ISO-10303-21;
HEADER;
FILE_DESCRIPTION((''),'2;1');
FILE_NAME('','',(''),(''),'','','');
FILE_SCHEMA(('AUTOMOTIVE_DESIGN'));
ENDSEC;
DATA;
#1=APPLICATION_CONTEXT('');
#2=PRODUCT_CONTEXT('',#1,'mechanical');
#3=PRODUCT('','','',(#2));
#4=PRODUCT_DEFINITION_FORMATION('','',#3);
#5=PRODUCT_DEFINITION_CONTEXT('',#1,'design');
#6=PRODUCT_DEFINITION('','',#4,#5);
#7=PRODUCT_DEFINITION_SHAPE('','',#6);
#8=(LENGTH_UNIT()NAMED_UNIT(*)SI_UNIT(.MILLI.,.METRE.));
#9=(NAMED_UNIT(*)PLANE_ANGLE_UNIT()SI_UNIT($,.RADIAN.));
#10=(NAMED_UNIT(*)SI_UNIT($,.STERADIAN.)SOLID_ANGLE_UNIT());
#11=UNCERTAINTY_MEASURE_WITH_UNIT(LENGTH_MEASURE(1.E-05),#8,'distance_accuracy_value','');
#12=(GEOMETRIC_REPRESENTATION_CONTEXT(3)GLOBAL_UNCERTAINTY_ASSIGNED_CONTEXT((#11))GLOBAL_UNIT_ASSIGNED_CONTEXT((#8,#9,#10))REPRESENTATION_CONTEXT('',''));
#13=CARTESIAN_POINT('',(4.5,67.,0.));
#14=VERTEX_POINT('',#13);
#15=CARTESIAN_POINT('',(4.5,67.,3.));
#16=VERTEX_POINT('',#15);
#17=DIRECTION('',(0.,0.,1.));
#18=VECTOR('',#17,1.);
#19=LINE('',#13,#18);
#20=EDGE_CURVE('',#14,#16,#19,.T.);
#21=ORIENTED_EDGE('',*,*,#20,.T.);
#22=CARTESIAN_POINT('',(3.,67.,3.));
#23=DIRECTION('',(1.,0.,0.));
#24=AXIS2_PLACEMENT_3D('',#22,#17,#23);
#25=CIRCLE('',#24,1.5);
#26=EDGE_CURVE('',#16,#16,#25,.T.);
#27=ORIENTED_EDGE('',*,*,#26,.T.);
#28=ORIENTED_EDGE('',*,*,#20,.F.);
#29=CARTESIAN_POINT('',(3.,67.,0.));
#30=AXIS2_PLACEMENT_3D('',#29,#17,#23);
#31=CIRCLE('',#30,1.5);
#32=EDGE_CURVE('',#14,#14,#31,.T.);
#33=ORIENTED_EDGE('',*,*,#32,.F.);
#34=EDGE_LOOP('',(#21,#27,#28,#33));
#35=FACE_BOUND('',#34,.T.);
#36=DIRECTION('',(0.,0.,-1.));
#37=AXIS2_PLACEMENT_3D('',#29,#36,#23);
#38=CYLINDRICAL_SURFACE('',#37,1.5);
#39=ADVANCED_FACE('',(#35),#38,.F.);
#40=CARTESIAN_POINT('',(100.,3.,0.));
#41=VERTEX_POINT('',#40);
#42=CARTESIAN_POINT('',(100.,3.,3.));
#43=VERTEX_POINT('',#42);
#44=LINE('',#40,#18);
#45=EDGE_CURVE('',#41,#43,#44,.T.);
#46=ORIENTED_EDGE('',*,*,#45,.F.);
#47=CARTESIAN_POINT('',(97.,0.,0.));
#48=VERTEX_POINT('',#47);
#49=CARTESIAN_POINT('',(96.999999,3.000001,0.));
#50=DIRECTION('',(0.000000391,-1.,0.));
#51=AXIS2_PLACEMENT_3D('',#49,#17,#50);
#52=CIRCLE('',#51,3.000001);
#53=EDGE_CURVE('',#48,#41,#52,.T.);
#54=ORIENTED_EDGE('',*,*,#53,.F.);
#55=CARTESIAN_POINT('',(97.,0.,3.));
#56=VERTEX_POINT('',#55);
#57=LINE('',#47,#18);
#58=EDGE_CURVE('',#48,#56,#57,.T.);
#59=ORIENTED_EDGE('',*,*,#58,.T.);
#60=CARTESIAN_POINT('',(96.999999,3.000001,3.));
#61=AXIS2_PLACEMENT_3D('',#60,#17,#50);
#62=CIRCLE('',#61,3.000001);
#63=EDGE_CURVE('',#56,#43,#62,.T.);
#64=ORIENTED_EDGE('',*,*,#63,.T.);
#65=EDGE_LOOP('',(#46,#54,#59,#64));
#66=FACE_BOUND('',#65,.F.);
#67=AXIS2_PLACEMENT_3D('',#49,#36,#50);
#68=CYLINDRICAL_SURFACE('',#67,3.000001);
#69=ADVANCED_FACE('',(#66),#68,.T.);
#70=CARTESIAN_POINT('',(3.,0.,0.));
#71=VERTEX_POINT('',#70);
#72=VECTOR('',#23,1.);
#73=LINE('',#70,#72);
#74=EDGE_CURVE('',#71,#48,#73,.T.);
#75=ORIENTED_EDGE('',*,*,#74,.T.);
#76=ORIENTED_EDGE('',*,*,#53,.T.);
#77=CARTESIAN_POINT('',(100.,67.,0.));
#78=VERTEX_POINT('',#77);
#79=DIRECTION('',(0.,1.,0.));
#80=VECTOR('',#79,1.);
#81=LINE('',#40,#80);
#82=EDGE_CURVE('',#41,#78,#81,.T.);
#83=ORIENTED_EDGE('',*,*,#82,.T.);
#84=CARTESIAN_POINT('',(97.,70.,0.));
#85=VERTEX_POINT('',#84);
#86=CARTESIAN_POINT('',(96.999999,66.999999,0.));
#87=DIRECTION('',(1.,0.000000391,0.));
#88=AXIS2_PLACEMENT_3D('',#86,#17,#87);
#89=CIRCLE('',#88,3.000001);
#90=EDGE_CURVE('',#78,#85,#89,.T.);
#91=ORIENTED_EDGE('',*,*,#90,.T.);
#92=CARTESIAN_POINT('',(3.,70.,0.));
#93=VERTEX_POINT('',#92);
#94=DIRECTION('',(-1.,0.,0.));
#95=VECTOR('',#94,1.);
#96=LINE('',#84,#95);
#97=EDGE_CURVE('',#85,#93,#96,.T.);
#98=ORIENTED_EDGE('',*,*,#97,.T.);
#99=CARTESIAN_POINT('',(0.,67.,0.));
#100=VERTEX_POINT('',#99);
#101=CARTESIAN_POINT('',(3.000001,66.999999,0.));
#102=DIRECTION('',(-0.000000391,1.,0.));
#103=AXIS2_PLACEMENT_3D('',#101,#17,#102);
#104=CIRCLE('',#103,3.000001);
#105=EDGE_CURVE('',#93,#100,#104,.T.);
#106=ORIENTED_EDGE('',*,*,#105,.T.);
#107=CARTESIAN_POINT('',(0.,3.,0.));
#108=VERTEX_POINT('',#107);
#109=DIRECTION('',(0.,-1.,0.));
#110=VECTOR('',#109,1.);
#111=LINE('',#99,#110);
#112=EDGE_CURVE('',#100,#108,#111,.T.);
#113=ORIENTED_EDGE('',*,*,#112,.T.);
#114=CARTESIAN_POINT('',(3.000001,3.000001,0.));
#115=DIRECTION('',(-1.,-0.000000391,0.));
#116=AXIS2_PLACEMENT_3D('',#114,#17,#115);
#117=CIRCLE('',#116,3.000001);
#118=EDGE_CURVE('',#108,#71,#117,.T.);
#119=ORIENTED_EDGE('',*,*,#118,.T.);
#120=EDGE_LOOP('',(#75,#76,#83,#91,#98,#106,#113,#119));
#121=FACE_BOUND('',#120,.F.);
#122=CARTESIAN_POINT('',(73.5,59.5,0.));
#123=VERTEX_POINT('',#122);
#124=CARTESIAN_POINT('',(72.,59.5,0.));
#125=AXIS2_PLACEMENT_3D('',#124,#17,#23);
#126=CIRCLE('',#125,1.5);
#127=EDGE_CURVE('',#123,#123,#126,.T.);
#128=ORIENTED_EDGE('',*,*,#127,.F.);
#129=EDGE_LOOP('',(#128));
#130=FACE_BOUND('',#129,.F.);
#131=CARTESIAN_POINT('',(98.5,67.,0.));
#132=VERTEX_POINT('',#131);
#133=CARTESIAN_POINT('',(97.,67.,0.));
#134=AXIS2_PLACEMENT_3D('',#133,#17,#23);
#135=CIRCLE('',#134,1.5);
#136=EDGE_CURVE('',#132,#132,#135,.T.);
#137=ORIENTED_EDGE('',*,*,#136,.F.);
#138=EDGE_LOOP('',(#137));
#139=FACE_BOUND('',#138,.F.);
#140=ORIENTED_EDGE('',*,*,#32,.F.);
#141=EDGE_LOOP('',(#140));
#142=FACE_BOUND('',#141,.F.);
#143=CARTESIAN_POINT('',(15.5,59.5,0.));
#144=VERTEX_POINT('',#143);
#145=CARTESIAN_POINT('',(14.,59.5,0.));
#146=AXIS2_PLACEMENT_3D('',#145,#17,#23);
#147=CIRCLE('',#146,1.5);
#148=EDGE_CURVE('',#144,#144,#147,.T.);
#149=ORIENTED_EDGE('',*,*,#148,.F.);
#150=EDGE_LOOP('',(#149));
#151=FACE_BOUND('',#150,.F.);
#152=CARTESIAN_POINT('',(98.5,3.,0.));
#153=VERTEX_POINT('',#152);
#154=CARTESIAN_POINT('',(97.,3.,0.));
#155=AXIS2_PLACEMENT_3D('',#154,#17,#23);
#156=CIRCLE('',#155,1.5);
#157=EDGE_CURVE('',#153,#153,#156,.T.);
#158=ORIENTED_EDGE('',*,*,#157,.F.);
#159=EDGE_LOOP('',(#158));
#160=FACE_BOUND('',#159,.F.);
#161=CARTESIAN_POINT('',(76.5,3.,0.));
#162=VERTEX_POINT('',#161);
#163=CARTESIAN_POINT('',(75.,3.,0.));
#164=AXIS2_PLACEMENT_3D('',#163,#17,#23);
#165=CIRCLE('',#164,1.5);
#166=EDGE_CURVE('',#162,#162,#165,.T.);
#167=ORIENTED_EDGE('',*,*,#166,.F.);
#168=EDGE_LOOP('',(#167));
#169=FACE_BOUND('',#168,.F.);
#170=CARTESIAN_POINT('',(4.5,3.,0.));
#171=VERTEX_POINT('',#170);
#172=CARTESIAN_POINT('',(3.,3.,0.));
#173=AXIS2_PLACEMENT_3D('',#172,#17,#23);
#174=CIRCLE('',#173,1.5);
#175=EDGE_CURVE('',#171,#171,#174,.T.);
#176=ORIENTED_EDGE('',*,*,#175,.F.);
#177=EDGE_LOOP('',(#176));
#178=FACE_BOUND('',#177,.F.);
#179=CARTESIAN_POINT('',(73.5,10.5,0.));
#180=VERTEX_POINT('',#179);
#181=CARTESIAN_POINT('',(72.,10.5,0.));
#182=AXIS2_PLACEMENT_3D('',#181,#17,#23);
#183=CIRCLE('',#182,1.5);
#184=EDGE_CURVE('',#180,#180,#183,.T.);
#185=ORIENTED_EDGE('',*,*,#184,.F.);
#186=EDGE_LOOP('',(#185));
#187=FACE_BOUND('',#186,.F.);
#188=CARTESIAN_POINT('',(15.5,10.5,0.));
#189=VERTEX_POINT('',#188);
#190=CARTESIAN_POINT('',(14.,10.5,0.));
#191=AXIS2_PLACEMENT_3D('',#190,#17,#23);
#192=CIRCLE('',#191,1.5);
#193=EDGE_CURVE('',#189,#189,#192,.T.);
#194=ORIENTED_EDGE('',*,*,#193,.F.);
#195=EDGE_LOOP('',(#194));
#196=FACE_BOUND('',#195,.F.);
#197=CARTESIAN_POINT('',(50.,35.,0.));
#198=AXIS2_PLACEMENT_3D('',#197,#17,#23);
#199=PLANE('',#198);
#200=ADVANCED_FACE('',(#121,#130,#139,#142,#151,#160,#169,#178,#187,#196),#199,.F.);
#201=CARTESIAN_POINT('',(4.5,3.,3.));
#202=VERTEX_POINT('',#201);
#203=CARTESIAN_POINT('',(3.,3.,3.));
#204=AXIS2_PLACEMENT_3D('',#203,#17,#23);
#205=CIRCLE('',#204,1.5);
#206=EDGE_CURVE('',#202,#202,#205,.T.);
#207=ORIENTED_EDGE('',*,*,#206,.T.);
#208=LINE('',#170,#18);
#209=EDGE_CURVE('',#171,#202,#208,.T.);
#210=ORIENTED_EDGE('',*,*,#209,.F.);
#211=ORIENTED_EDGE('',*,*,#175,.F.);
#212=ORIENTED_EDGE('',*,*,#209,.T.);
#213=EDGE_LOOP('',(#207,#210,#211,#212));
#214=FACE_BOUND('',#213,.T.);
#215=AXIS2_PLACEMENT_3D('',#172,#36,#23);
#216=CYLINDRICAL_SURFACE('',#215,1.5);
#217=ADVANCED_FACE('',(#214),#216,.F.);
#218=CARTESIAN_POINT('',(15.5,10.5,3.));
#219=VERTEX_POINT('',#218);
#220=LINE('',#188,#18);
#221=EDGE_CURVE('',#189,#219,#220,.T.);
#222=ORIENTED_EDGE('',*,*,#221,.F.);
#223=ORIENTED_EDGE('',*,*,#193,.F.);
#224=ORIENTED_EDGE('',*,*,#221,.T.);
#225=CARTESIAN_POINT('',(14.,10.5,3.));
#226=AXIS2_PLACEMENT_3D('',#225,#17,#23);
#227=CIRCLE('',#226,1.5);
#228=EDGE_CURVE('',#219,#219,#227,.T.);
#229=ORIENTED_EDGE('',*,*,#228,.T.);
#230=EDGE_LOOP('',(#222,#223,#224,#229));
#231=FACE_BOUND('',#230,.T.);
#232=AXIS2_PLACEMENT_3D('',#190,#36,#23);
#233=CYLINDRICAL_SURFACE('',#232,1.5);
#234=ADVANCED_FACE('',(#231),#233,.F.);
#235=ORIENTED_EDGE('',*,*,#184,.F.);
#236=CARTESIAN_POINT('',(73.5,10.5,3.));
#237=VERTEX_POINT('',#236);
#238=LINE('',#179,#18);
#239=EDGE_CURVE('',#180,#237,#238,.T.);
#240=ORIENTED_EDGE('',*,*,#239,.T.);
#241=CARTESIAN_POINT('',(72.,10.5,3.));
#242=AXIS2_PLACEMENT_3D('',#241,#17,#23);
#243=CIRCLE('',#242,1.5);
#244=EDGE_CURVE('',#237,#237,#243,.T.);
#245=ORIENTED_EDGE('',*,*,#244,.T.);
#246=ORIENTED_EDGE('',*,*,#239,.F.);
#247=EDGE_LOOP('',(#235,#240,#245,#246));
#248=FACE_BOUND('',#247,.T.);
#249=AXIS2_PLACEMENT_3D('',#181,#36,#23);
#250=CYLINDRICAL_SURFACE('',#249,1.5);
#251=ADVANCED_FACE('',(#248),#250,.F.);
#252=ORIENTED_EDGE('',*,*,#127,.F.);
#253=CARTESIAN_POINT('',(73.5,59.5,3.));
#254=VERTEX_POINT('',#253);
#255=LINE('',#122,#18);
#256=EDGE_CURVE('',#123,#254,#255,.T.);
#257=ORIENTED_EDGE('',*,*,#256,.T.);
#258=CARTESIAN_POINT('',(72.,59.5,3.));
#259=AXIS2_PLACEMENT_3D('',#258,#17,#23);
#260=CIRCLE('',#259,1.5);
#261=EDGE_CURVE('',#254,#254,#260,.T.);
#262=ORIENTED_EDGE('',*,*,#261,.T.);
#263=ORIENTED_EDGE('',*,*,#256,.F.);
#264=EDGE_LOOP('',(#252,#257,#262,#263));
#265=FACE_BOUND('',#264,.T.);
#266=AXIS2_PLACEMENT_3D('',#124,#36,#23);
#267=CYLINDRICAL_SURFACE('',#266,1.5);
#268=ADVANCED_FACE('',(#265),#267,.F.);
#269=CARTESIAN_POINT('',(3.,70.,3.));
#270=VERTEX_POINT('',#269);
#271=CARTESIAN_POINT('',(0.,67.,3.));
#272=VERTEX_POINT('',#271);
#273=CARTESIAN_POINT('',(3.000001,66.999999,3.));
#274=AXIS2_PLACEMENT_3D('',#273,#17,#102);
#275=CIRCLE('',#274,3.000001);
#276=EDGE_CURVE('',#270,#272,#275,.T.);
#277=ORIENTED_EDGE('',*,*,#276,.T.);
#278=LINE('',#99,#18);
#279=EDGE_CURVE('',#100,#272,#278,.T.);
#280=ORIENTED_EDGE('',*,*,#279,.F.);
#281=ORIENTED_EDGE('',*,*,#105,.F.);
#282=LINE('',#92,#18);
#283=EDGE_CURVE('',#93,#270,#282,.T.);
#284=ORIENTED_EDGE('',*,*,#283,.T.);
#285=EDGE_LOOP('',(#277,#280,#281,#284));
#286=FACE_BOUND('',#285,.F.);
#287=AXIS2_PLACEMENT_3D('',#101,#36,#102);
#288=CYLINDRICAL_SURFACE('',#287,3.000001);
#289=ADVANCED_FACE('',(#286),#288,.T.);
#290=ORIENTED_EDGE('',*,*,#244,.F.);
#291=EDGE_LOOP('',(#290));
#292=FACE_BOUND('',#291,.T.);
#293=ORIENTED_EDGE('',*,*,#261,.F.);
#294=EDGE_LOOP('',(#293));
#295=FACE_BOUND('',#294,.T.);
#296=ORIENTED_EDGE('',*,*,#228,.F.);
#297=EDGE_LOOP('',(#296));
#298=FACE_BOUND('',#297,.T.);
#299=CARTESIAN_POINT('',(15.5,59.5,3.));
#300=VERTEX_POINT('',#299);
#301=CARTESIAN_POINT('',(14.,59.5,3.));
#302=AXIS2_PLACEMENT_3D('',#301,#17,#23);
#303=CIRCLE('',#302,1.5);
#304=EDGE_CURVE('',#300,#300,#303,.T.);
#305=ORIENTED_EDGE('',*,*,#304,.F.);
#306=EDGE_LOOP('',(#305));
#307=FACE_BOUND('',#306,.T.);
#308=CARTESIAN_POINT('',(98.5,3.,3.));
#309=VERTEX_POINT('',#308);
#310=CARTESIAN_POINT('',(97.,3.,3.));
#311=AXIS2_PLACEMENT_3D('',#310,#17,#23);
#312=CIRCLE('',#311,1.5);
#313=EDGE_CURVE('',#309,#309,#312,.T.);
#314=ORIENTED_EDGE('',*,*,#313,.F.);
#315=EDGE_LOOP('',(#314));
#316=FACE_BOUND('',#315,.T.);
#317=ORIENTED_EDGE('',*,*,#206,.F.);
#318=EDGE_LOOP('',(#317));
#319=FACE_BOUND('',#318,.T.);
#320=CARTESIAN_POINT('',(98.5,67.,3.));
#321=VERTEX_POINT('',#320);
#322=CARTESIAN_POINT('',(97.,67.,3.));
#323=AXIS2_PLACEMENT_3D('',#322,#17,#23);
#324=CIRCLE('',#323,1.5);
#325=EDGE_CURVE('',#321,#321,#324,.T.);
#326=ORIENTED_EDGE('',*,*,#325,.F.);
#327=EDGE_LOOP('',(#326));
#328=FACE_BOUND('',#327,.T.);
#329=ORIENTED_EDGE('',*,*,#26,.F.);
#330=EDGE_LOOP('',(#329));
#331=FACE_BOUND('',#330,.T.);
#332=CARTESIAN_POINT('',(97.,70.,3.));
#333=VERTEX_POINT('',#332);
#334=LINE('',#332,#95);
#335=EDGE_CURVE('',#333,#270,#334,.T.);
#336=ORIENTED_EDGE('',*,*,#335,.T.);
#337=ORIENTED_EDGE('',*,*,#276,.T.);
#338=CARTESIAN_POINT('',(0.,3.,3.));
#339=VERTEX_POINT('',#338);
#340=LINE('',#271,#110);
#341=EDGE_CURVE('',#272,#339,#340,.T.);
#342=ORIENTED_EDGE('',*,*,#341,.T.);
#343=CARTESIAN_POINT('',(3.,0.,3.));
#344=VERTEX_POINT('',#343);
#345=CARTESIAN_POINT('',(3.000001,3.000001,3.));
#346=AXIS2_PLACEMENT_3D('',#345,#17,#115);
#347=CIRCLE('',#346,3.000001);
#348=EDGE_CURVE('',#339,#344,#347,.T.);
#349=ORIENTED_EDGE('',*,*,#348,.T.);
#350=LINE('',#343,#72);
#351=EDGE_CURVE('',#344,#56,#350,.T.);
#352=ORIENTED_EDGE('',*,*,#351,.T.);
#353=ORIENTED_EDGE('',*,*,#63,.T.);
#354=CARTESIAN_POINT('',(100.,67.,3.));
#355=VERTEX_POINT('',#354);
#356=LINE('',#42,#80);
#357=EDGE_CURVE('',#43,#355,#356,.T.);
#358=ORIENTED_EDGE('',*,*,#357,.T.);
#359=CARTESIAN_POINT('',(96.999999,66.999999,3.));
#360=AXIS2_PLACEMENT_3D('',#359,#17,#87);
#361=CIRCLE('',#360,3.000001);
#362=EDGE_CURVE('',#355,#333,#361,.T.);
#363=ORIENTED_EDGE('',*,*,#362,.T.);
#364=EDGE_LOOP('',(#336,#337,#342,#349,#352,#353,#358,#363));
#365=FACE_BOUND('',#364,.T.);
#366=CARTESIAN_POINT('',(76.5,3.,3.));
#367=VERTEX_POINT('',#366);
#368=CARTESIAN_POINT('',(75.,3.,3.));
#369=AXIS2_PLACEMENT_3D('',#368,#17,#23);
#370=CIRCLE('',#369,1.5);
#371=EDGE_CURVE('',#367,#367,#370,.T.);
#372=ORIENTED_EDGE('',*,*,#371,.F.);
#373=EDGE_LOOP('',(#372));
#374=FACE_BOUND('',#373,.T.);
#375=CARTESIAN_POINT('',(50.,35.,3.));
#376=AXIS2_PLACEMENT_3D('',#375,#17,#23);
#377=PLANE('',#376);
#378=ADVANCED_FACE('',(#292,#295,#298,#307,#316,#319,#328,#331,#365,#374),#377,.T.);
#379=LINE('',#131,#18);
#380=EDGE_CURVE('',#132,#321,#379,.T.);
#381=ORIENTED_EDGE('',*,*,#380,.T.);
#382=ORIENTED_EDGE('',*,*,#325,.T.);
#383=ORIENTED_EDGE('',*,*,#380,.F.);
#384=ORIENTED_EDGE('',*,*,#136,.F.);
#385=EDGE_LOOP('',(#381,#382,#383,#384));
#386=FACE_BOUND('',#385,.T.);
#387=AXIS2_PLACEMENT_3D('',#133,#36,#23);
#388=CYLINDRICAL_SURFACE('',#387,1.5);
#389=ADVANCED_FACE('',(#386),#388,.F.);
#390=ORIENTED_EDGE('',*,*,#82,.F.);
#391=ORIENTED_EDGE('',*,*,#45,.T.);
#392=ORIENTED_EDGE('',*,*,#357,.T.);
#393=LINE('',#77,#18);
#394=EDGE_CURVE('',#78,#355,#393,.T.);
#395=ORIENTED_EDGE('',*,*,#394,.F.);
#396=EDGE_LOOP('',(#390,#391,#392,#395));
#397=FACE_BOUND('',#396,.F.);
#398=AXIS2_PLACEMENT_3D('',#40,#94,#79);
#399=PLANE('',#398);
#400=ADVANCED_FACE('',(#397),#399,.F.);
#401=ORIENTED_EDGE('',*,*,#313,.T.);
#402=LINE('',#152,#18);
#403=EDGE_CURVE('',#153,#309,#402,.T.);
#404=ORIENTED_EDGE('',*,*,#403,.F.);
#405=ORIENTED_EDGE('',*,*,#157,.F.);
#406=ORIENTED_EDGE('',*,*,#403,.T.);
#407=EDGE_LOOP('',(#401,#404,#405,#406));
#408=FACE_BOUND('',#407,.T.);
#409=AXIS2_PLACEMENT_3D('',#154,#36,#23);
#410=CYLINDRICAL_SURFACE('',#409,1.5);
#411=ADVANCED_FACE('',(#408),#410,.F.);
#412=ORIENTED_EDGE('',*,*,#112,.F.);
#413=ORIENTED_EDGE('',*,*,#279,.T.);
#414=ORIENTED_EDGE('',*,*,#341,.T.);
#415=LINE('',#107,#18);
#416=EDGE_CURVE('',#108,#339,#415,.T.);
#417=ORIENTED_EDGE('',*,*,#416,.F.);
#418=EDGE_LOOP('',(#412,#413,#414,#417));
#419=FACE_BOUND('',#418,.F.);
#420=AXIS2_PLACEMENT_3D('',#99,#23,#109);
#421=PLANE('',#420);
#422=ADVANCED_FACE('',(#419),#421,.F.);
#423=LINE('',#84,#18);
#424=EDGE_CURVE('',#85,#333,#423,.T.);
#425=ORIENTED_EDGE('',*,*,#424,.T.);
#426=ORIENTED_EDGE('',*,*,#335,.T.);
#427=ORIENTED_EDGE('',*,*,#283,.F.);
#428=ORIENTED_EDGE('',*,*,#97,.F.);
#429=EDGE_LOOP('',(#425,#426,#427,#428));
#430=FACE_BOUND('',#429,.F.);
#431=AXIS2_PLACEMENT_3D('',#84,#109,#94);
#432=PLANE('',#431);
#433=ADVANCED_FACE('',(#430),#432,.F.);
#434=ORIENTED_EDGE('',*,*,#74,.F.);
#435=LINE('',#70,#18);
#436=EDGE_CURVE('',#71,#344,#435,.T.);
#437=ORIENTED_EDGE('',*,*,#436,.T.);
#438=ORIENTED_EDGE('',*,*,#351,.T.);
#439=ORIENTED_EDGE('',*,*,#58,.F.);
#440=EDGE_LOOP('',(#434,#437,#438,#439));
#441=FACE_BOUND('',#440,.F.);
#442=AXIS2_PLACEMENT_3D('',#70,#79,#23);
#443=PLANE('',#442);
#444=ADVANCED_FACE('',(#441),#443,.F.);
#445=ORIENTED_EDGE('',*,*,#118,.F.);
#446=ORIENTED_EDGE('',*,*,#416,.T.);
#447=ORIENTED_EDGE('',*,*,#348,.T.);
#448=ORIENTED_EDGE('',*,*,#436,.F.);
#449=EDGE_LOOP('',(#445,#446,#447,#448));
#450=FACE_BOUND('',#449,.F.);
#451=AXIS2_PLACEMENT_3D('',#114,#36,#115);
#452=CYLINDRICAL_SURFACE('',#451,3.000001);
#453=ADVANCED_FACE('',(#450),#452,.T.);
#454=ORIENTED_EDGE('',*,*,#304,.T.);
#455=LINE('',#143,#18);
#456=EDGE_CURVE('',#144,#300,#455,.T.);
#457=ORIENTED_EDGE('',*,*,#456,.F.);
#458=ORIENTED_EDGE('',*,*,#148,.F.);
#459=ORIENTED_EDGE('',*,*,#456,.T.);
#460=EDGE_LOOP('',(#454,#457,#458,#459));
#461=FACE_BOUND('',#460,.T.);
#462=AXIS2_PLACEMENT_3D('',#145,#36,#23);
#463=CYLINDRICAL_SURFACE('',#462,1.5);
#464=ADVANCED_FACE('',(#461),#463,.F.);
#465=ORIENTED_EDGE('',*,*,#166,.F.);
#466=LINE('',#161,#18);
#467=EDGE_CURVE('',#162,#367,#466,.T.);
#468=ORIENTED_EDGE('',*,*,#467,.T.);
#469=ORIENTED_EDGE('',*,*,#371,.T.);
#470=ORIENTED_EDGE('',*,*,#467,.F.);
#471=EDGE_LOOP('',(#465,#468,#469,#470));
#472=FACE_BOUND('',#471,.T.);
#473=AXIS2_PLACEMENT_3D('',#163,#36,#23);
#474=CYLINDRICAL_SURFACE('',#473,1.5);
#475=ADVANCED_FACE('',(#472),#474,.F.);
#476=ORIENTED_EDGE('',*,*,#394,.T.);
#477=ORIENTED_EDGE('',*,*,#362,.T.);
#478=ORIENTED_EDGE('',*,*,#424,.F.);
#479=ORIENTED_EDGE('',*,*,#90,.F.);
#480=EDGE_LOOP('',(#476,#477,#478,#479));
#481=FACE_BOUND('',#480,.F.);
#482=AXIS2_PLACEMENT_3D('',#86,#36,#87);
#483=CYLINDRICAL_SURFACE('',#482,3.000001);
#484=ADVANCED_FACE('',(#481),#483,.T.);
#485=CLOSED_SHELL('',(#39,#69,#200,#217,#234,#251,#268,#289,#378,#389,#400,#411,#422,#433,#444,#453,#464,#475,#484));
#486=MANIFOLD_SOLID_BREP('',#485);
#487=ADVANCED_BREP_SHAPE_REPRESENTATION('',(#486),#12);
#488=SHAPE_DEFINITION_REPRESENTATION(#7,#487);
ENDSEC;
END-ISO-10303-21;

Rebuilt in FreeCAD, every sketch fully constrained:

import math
import FreeCAD as App
import Part
import Sketcher
from FreeCAD import Vector

doc = App.newDocument("Part")
body = doc.addObject("PartDesign::Body", "Body")

# Sketch on XY plane
sketch1 = doc.addObject("Sketcher::SketchObject", "Sketch")
body.addObject(sketch1)
sketch1.AttachmentSupport = (doc.XY_Plane, [""])
sketch1.MapMode = "FlatFace"
sketch1.addGeometry([
    Part.ArcOfCircle(Part.Circle(Vector(3, 3, 0), Vector(0, 0, 1), 3), math.radians(-180), math.radians(-90)),  # 0
    Part.LineSegment(Vector(3, 0, 0), Vector(97, 0, 0)),  # 1
    Part.ArcOfCircle(Part.Circle(Vector(97, 3, 0), Vector(0, 0, 1), 3), math.radians(-90), math.radians(0)),  # 2
    Part.LineSegment(Vector(100, 3, 0), Vector(100, 67, 0)),  # 3
    Part.ArcOfCircle(Part.Circle(Vector(97, 67, 0), Vector(0, 0, 1), 3), math.radians(0), math.radians(90)),  # 4
    Part.LineSegment(Vector(97, 70, 0), Vector(3, 70, 0)),  # 5
    Part.ArcOfCircle(Part.Circle(Vector(3, 67, 0), Vector(0, 0, 1), 3), math.radians(90), math.radians(180)),  # 6
    Part.LineSegment(Vector(0, 67, 0), Vector(0, 3, 0)),  # 7
    Part.Circle(Vector(3, 3, 0), Vector(0, 0, 1), 1.5),  # 8
    Part.Circle(Vector(14, 10.5, 0), Vector(0, 0, 1), 1.5),  # 9
    Part.Circle(Vector(72, 10.5, 0), Vector(0, 0, 1), 1.5),  # 10
    Part.Circle(Vector(75, 3, 0), Vector(0, 0, 1), 1.5),  # 11
    Part.Circle(Vector(97, 3, 0), Vector(0, 0, 1), 1.5),  # 12
    Part.Circle(Vector(14, 59.5, 0), Vector(0, 0, 1), 1.5),  # 13
    Part.Circle(Vector(3, 67, 0), Vector(0, 0, 1), 1.5),  # 14
    Part.Circle(Vector(72, 59.5, 0), Vector(0, 0, 1), 1.5),  # 15
    Part.Circle(Vector(97, 67, 0), Vector(0, 0, 1), 1.5),  # 16
], False)
sketch1.addConstraint([
    Sketcher.Constraint("Tangent", 0, 2, 1, 1),
    Sketcher.Constraint("Tangent", 1, 2, 2, 1),
    Sketcher.Constraint("Tangent", 2, 2, 3, 1),
    Sketcher.Constraint("Tangent", 3, 2, 4, 1),
    Sketcher.Constraint("Tangent", 4, 2, 5, 1),
    Sketcher.Constraint("Tangent", 5, 2, 6, 1),
    Sketcher.Constraint("Tangent", 6, 2, 7, 1),
    Sketcher.Constraint("Tangent", 7, 2, 0, 1),
    Sketcher.Constraint("Horizontal", 1),
    Sketcher.Constraint("Vertical", 3),
    Sketcher.Constraint("Horizontal", 5),
    Sketcher.Constraint("Vertical", 7),
    Sketcher.Constraint("Coincident", 8, 3, 0, 3),
    Sketcher.Constraint("Coincident", 12, 3, 2, 3),
    Sketcher.Constraint("Coincident", 14, 3, 6, 3),
    Sketcher.Constraint("Coincident", 16, 3, 4, 3),
    Sketcher.Constraint("Equal", 0, 2),
    Sketcher.Constraint("Equal", 2, 4),
    Sketcher.Constraint("Equal", 4, 6),
    Sketcher.Constraint("Equal", 8, 9),
    Sketcher.Constraint("Equal", 9, 10),
    Sketcher.Constraint("Equal", 10, 11),
    Sketcher.Constraint("Equal", 11, 12),
    Sketcher.Constraint("Equal", 12, 13),
    Sketcher.Constraint("Equal", 13, 14),
    Sketcher.Constraint("Equal", 14, 15),
    Sketcher.Constraint("Equal", 15, 16),
    Sketcher.Constraint("PointOnObject", 0, 2, -1),
    Sketcher.Constraint("PointOnObject", 6, 2, -2),
    Sketcher.Constraint("Horizontal", 9, 3, 10, 3),
    Sketcher.Constraint("Horizontal", 8, 3, 11, 3),
    Sketcher.Constraint("Horizontal", 13, 3, 15, 3),
    Sketcher.Constraint("Vertical", 9, 3, 13, 3),
    Sketcher.Constraint("Vertical", 10, 3, 15, 3),
    Sketcher.Constraint("Diameter", 8, 3.0),
    Sketcher.Constraint("Radius", 0, 3.000001),
    Sketcher.Constraint("DistanceX", 1, 1, 1, 2, 94.0),
    Sketcher.Constraint("DistanceY", 3, 1, 3, 2, 64.0),
    Sketcher.Constraint("DistanceX", -1, 1, 9, 3, 14.0),
    Sketcher.Constraint("DistanceX", -1, 1, 10, 3, 72.0),
    Sketcher.Constraint("DistanceX", -1, 1, 11, 3, 75.0),
    Sketcher.Constraint("DistanceY", 9, 3, 13, 3, 49.0),
    Sketcher.Constraint("DistanceY", -1, 1, 9, 3, 10.5),
])
pad1 = doc.addObject("PartDesign::Pad", "Pad")
body.addObject(pad1)
pad1.Profile = sketch1
pad1.Length = 3

doc.recompute()
